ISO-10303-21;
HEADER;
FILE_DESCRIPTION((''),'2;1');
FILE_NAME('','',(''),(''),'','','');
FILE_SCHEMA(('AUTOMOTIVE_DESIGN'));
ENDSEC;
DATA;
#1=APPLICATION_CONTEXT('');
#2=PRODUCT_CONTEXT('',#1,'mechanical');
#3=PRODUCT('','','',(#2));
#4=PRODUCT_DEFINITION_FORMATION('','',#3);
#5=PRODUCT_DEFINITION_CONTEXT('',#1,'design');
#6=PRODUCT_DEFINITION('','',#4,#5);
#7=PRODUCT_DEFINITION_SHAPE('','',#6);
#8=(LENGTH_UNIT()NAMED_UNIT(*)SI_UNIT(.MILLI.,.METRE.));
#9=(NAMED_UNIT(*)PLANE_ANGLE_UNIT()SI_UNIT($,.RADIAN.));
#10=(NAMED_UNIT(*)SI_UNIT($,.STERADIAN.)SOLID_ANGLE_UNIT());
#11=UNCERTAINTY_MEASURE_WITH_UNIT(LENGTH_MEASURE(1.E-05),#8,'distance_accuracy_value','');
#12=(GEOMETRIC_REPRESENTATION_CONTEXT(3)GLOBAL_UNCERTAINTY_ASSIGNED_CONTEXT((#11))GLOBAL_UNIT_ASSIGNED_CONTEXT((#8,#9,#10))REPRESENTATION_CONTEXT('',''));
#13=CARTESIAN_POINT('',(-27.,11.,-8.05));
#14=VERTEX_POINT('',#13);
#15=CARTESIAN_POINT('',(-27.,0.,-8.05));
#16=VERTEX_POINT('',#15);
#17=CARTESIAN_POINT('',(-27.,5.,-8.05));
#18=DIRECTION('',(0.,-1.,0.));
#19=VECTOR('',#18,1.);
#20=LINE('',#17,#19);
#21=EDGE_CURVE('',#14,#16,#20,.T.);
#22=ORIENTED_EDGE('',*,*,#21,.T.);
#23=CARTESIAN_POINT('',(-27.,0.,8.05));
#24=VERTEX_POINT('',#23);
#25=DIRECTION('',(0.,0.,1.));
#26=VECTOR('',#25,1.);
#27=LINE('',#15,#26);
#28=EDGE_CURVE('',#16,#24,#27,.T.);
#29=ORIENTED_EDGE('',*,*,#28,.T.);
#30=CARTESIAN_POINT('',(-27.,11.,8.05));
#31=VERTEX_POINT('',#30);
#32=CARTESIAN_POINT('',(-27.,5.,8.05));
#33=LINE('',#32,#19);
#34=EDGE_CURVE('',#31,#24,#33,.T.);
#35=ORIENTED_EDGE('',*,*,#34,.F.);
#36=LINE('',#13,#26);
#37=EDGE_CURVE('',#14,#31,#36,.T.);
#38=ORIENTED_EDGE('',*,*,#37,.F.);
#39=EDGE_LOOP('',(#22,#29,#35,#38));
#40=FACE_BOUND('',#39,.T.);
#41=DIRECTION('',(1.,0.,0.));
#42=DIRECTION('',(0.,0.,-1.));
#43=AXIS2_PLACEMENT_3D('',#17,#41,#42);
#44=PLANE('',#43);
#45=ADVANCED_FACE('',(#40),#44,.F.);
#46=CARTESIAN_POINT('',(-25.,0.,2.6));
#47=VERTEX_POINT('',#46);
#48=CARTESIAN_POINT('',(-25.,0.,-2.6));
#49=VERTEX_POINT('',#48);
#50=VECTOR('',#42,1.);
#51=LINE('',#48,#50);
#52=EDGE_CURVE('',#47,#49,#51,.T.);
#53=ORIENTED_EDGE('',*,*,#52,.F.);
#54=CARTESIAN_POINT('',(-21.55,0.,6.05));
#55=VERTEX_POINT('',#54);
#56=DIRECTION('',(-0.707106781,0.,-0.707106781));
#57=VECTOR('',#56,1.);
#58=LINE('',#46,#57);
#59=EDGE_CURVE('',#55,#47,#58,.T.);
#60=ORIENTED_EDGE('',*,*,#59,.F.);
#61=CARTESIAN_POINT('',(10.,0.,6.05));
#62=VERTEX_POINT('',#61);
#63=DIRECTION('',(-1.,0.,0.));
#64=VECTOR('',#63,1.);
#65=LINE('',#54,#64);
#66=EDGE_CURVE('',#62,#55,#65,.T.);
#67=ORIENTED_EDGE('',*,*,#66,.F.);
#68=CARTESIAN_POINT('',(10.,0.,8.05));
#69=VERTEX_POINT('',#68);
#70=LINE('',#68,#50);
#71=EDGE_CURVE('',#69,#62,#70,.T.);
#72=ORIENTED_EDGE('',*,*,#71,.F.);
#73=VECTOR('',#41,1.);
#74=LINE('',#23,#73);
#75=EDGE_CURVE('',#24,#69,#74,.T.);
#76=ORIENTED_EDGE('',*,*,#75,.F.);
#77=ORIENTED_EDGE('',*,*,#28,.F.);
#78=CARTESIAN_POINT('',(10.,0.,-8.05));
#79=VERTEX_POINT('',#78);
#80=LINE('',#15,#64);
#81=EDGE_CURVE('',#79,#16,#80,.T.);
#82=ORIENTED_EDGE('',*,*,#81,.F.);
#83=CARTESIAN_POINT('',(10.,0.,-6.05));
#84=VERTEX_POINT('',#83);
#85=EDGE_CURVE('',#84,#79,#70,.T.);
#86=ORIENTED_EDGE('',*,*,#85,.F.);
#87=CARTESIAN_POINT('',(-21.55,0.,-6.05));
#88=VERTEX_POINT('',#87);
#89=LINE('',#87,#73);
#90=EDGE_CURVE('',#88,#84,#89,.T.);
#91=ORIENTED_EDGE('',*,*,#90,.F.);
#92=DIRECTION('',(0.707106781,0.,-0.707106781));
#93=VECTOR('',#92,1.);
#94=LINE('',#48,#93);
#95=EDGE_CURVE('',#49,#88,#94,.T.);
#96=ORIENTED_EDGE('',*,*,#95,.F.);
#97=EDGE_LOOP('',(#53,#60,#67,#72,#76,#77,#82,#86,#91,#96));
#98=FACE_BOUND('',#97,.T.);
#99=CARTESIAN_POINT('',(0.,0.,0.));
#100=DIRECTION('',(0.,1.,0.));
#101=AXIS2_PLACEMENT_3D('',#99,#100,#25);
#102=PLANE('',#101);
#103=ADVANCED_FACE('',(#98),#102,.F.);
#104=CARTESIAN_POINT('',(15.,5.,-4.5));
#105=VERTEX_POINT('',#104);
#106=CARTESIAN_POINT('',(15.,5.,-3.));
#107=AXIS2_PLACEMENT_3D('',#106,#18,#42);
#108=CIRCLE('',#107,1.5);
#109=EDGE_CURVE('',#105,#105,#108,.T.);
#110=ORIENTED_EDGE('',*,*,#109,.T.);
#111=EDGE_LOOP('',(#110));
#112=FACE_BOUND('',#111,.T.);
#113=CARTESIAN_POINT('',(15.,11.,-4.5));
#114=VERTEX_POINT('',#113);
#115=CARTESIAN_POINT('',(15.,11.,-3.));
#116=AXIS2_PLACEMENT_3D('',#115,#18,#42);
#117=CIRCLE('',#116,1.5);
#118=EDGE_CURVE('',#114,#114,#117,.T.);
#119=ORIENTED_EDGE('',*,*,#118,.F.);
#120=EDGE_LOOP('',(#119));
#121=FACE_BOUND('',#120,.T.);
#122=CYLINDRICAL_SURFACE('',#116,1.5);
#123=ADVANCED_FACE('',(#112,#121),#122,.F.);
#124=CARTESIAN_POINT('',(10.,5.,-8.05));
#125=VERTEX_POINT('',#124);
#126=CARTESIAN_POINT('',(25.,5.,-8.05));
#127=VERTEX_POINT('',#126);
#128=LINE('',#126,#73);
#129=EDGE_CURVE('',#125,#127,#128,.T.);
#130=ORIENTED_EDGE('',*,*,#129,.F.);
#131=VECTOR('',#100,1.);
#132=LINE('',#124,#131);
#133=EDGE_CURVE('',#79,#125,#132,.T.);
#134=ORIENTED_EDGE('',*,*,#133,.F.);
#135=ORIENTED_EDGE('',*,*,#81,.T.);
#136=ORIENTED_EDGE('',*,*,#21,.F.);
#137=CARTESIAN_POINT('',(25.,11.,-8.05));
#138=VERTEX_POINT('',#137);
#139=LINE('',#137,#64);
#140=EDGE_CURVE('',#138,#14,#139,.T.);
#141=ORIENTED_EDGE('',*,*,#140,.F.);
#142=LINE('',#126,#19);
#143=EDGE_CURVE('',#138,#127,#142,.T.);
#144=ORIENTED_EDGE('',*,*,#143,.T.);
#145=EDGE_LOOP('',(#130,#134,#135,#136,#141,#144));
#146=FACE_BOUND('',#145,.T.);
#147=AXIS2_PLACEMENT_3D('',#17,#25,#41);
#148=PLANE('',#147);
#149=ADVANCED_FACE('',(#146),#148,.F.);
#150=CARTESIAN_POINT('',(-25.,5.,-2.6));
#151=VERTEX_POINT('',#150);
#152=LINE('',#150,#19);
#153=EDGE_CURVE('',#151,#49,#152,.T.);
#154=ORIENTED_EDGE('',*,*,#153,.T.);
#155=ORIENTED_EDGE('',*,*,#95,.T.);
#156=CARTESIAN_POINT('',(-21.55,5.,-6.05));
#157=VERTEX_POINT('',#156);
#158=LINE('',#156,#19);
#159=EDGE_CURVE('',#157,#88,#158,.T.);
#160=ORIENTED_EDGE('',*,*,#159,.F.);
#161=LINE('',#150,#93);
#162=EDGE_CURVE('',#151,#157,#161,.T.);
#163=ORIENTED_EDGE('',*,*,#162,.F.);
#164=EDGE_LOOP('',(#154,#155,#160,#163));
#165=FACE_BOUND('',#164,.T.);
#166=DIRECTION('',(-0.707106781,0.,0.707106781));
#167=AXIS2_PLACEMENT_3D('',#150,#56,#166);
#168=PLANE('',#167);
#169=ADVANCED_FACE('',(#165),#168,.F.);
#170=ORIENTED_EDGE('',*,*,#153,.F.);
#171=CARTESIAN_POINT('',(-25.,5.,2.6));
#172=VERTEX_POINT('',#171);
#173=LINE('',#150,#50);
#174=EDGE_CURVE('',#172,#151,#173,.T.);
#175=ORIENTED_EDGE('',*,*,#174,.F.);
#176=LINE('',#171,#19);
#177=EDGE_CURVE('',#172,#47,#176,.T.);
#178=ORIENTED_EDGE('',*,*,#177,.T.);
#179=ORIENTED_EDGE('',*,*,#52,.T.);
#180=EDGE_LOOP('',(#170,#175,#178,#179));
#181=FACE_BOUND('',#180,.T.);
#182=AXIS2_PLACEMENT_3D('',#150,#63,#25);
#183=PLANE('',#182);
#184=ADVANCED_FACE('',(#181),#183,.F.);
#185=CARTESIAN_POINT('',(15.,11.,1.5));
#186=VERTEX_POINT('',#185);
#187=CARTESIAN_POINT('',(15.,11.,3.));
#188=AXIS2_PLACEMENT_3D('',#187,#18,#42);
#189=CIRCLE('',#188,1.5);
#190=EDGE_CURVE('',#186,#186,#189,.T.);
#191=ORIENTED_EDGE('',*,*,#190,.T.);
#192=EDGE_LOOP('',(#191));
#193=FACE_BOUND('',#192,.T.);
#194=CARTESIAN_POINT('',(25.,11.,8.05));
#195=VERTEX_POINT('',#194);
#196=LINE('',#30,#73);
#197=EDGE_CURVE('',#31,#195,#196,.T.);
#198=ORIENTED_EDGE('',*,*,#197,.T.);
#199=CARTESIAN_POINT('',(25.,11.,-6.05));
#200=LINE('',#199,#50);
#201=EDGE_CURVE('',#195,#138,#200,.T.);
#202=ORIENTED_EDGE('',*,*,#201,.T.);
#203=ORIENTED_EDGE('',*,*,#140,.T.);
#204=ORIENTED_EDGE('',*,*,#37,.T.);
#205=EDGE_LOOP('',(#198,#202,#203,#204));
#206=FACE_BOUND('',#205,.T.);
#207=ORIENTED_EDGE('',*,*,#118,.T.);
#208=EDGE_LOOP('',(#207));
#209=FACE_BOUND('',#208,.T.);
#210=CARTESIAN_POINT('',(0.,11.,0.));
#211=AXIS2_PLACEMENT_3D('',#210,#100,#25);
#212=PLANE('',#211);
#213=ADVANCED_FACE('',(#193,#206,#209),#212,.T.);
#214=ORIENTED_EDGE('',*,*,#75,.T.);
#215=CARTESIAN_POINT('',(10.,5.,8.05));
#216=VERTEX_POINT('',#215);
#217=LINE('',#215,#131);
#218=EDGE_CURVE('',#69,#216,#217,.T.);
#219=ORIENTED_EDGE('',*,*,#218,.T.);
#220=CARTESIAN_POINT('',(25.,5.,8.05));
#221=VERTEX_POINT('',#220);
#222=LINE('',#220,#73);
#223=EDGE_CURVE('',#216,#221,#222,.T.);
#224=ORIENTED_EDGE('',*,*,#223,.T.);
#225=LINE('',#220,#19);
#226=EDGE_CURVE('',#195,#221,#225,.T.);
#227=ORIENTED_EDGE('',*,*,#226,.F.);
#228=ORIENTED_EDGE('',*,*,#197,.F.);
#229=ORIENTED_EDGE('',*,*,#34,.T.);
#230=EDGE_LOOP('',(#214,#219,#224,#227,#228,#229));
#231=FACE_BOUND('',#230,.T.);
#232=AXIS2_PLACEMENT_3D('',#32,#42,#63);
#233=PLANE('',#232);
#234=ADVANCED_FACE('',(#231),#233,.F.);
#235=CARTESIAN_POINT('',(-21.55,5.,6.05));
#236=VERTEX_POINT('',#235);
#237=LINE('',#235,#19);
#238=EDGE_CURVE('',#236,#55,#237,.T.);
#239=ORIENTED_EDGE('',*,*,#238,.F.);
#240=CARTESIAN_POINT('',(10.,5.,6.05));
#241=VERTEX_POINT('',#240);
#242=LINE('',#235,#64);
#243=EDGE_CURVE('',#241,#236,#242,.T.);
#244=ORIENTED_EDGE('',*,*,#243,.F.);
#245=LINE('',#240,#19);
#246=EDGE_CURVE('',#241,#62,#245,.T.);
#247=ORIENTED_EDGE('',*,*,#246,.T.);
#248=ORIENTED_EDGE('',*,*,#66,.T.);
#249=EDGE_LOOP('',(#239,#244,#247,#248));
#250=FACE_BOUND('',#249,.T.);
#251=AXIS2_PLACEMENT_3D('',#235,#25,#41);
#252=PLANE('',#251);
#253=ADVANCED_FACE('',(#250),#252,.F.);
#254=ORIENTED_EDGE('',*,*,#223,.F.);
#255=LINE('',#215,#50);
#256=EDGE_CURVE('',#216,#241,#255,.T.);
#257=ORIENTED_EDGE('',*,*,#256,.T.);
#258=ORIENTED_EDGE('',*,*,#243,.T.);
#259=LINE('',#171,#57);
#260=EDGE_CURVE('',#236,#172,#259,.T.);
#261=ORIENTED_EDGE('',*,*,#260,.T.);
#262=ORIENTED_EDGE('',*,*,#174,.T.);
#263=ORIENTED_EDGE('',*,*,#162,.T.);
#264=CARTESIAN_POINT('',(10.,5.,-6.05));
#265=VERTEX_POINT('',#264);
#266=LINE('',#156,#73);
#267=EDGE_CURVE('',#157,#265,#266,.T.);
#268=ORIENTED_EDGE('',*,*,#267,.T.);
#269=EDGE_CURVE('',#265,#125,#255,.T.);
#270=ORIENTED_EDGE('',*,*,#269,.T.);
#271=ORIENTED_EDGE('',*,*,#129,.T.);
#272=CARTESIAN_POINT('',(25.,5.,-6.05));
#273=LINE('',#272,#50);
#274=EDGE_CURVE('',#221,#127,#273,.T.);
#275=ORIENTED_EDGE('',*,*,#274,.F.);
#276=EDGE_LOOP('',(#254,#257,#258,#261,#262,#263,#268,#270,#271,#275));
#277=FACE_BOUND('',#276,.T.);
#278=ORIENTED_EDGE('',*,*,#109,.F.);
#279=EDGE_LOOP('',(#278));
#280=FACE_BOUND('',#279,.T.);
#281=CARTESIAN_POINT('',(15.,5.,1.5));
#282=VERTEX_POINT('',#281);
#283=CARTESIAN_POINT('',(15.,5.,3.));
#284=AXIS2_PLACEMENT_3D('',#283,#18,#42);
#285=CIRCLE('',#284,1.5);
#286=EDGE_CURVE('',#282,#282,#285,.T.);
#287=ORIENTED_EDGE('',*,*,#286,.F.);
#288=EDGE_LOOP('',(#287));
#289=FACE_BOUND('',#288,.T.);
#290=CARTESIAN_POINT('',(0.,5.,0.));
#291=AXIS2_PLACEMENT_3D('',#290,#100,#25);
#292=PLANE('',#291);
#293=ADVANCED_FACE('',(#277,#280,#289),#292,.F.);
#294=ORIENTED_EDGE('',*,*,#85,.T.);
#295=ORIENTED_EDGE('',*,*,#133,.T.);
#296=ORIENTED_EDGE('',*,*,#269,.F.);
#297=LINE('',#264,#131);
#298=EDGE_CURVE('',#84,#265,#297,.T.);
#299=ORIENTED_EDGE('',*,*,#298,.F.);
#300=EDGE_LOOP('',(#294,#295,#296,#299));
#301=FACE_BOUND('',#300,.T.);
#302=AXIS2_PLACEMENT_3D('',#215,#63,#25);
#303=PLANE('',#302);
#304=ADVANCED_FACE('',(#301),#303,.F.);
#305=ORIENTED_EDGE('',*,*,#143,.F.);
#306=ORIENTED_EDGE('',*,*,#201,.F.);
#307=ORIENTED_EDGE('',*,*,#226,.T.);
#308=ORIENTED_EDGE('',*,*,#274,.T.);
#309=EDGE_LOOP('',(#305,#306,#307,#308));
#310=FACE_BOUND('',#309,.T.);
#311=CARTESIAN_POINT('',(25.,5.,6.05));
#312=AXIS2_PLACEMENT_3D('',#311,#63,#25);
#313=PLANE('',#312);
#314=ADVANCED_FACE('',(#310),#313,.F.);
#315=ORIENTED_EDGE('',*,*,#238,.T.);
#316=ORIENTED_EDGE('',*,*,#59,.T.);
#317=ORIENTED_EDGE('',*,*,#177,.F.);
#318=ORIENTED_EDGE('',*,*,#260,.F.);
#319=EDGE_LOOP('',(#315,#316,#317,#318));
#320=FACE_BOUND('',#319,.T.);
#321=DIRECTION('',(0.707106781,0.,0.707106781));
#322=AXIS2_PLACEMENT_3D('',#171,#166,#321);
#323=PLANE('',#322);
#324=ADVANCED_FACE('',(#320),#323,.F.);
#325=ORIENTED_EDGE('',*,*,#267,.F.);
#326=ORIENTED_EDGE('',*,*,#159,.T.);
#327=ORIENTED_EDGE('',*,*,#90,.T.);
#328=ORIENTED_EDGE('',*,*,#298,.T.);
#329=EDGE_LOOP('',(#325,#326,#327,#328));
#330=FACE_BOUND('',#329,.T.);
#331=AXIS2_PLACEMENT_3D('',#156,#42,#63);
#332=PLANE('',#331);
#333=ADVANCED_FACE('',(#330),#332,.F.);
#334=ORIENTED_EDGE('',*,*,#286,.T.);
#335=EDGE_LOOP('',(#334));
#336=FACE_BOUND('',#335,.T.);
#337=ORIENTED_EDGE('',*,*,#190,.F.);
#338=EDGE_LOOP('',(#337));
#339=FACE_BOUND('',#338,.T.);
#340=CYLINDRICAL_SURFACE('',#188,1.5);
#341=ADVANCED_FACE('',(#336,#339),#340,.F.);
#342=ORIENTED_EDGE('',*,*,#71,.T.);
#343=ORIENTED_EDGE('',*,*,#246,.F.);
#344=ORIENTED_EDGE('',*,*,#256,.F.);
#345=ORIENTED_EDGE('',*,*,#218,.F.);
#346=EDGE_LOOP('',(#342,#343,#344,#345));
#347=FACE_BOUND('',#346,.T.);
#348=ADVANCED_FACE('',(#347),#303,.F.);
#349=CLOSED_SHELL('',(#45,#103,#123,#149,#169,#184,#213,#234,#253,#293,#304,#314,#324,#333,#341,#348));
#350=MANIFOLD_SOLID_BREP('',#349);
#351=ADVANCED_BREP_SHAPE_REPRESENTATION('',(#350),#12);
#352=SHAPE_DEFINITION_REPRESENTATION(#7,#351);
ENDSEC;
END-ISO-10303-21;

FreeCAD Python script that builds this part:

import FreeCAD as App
import Part
import Sketcher
from FreeCAD import Vector
Q = App.Units.Quantity


def add_polygon(sketch, points):
    """Adds a closed chain of lines whose ends are joined by coincident constraints."""
    first, n = sketch.GeometryCount, len(points)
    for a, b in zip(points, points[1:] + points[:1]):
        sketch.addGeometry(Part.LineSegment(App.Vector(*a, 0), App.Vector(*b, 0)), False)
    for i in range(n):
        sketch.addConstraint(Sketcher.Constraint("Coincident", first + i, 2, first + (i + 1) % n, 1))

doc = App.newDocument("Part")
body = doc.addObject("PartDesign::Body", "Body")

sketch1 = doc.addObject("Sketcher::SketchObject", "Sketch")
body.addObject(sketch1)
sketch1.AttachmentSupport = (doc.XZ_Plane, [""])
sketch1.MapMode = "FlatFace"
add_polygon(sketch1, [(25, -8.05), (-27, -8.05), (-27, 8.05), (25, 8.05), (25, 6.05), (-21.55, 6.05), (-25, 2.6), (-25, -2.6), (-21.55, -6.05), (25, -6.05)])
sketch1.addConstraint([
    Sketcher.Constraint("Horizontal", 0),
    Sketcher.Constraint("Vertical", 1),
    Sketcher.Constraint("Horizontal", 2),
    Sketcher.Constraint("Vertical", 3),
    Sketcher.Constraint("Horizontal", 4),
    Sketcher.Constraint("Vertical", 6),
    Sketcher.Constraint("Horizontal", 8),
    Sketcher.Constraint("Vertical", 9),
    Sketcher.Constraint("Symmetric", 4, 2, 7, 2, -1),
    Sketcher.Constraint("Symmetric", 2, 2, 9, 2, -1),
    Sketcher.Constraint("Perpendicular", 5, 7),
    Sketcher.Constraint("Equal", 5, 7),
    Sketcher.Constraint("DistanceX", 0, 2, 0, 1, Q("52 mm")),
    Sketcher.Constraint("DistanceY", 3, 2, 3, 1, Q("2 mm")),
    Sketcher.Constraint("DistanceY", 1, 1, 1, 2, Q("16.1 mm")),
    Sketcher.Constraint("DistanceY", 6, 2, 6, 1, Q("5.2 mm")),
    Sketcher.Constraint("DistanceX", 0, 2, -1, 1, Q("27 mm")),
    Sketcher.Constraint("DistanceX", 5, 2, -1, 1, Q("25 mm")),
])
pad1 = doc.addObject("PartDesign::Pad", "Pad")
body.addObject(pad1)
pad1.Profile = sketch1
pad1.Length = 5
pad1.Reversed = True

sketch2 = doc.addObject("Sketcher::SketchObject", "Sketch001")
body.addObject(sketch2)
sketch2.AttachmentSupport = (doc.XZ_Plane, [""])
sketch2.MapMode = "FlatFace"
sketch2.AttachmentOffset = App.Placement(Vector(0, 0, -5), App.Rotation())
add_polygon(sketch2, [(25, 8.05), (25, -8.05), (-27, -8.05), (-27, 8.05)])
sketch2.addConstraint([
    Sketcher.Constraint("Vertical", 0),
    Sketcher.Constraint("Horizontal", 1),
    Sketcher.Constraint("Vertical", 2),
    Sketcher.Constraint("Horizontal", 3),
    Sketcher.Constraint("DistanceX", 1, 2, 1, 1, Q("52 mm")),
    Sketcher.Constraint("DistanceY", 0, 2, 0, 1, Q("16.1 mm")),
    Sketcher.Constraint("DistanceX", -1, 1, 0, 2, Q("25 mm")),
    Sketcher.Constraint("DistanceY", 0, 2, -1, 1, Q("8.05 mm")),
])
pad2 = doc.addObject("PartDesign::Pad", "Pad001")
body.addObject(pad2)
pad2.Profile = sketch2
pad2.Length = 6
pad2.Reversed = True

sketch3 = doc.addObject("Sketcher::SketchObject", "Sketch002")
body.addObject(sketch3)
sketch3.AttachmentSupport = (doc.XZ_Plane, [""])
sketch3.MapMode = "FlatFace"
sketch3.AttachmentOffset = App.Placement(Vector(0, 0, -5), App.Rotation())
sketch3.addGeometry([
    Part.Circle(Vector(15, 3, 0), Vector(0, 0, 1), 1.5),
    Part.Circle(Vector(15, -3, 0), Vector(0, 0, 1), 1.5),
], False)
sketch3.addConstraint([
    Sketcher.Constraint("Equal", 0, 1),
    Sketcher.Constraint("Symmetric", 0, 3, 1, 3, -1),
    Sketcher.Constraint("Diameter", 0, Q("3 mm")),
    Sketcher.Constraint("DistanceX", -1, 1, 0, 3, Q("15 mm")),
    Sketcher.Constraint("DistanceY", -1, 1, 0, 3, Q("3 mm")),
])
pocket1 = doc.addObject("PartDesign::Pocket", "Pocket")
body.addObject(pocket1)
pocket1.Profile = sketch3
pocket1.Type = "ThroughAll"

sketch4 = doc.addObject("Sketcher::SketchObject", "Sketch003")
body.addObject(sketch4)
sketch4.AttachmentSupport = (doc.XY_Plane, [""])
sketch4.MapMode = "FlatFace"
sketch4.AttachmentOffset = App.Placement(Vector(0, 0, 6.05), App.Rotation())
add_polygon(sketch4, [(25, 5), (25, 0), (10, 0), (10, 5)])
sketch4.addConstraint([
    Sketcher.Constraint("Vertical", 0),
    Sketcher.Constraint("Horizontal", 1),
    Sketcher.Constraint("Vertical", 2),
    Sketcher.Constraint("Horizontal", 3),
    Sketcher.Constraint("PointOnObject", 0, 2, -1),
    Sketcher.Constraint("DistanceX", 1, 2, 1, 1, Q("15 mm")),
    Sketcher.Constraint("DistanceY", 0, 2, 0, 1, Q("5 mm")),
    Sketcher.Constraint("DistanceX", -1, 1, 0, 2, Q("25 mm")),
])
pocket2 = doc.addObject("PartDesign::Pocket", "Pocket001")
body.addObject(pocket2)
pocket2.Profile = sketch4
pocket2.Type = "ThroughAll"
pocket2.Midplane = True

doc.recompute()
